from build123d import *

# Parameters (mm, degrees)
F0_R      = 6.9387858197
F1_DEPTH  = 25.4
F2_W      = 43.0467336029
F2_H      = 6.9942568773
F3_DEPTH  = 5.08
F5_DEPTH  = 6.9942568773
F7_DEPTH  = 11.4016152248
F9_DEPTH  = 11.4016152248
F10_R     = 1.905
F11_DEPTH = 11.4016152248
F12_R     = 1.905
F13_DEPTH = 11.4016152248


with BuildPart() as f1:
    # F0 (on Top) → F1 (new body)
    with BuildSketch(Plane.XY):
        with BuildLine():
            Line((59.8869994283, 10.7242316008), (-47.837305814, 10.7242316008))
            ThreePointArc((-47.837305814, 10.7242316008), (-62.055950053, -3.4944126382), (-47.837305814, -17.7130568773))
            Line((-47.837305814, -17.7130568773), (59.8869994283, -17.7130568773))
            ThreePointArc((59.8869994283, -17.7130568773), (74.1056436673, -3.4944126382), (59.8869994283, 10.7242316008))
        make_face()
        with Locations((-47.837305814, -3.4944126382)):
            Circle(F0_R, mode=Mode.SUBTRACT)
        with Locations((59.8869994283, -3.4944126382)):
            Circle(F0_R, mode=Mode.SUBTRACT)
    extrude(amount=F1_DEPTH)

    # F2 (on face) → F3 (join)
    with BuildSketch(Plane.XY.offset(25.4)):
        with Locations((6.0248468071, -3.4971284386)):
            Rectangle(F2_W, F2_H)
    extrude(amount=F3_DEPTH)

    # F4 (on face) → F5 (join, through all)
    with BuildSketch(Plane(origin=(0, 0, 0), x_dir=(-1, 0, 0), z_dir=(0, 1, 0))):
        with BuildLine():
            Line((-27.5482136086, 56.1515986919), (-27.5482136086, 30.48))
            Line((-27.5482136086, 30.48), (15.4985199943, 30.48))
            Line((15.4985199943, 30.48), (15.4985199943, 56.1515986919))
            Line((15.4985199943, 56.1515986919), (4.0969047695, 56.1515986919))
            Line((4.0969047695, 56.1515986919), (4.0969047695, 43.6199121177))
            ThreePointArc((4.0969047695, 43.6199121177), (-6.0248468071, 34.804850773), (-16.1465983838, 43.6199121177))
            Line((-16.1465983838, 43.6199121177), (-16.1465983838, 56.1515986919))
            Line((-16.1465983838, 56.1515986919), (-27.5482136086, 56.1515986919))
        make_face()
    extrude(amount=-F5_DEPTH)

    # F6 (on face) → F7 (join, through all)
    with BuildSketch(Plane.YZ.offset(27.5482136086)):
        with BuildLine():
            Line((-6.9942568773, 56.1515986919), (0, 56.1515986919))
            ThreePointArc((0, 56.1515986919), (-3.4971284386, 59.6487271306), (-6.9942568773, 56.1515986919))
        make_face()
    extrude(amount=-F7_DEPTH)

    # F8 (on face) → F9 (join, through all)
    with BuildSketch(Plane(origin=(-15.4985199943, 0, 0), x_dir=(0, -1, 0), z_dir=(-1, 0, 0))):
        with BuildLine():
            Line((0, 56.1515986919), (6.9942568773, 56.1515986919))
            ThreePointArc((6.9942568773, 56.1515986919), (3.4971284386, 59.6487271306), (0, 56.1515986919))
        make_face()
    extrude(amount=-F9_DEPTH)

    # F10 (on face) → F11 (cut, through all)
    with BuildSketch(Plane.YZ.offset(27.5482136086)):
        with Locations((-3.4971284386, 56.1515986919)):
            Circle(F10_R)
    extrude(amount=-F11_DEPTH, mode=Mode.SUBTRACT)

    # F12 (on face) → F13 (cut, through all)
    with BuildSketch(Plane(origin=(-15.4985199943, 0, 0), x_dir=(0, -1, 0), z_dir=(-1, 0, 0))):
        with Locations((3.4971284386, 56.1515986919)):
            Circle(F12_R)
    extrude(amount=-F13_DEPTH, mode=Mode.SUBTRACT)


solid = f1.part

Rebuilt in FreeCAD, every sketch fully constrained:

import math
import FreeCAD as App
import Part
import Sketcher
from FreeCAD import Vector
Q = App.Units.Quantity

doc = App.newDocument("Part")
params = doc.addObject("Spreadsheet::Sheet", "Params")
for row, (alias, value) in enumerate([
    ("pad1_length", "1 in"),
    ("pad2_length", "0.2 in"),
    ("pad3_length", "6.994257 mm"),
    ("pad4_length", "11.401615 mm"),
    ("pad5_length", "11.401615 mm"),
    ("sketch6_diameter", "0.15 in"),
    ("pocket1_length", "11.401615 mm"),
    ("sketch7_diameter", "0.15 in"),
], start=1):
    params.set(f"A{row}", alias)
    params.set(f"B{row}", "=" + value)
    params.setAlias(f"B{row}", alias)

body = doc.addObject("PartDesign::Body", "Body")

sketch1 = body.newObject("Sketcher::SketchObject", "Sketch")
sketch1.AttachmentSupport = (doc.getObject("XY_Plane"), [""])
sketch1.MapMode = "FlatFace"
sketch1.addGeometry([
    Part.LineSegment(Vector(60, 11, 0), Vector(-48, 11, 0)),
    Part.ArcOfCircle(Part.Circle(Vector(-48, -3, 0), Vector(0, 0, 1), 14), math.radians(90), math.radians(270)),
    Part.LineSegment(Vector(-48, -18, 0), Vector(60, -18, 0)),
    Part.ArcOfCircle(Part.Circle(Vector(60, -3, 0), Vector(0, 0, 1), 14), math.radians(-90), math.radians(90)),
    Part.Circle(Vector(-48, -3, 0), Vector(0, 0, 1), 7),
    Part.Circle(Vector(60, -3, 0), Vector(0, 0, 1), 7),
], False)
sketch1.addConstraint([
    Sketcher.Constraint("Tangent", 0, 2, 1, 1),
    Sketcher.Constraint("Tangent", 1, 2, 2, 1),
    Sketcher.Constraint("Tangent", 2, 2, 3, 1),
    Sketcher.Constraint("Tangent", 3, 2, 0, 1),
    Sketcher.Constraint("Horizontal", 0),
    Sketcher.Constraint("Horizontal", 2),
    Sketcher.Constraint("Coincident", 4, 3, 1, 3),
    Sketcher.Constraint("Coincident", 5, 3, 3, 3),
    Sketcher.Constraint("Equal", 4, 5),
    Sketcher.Constraint("Diameter", 4, Q("13.877572 mm")),
    Sketcher.Constraint("Radius", 1, Q("14.218644 mm")),
    Sketcher.Constraint("DistanceX", -1, 1, 3, 3, Q("59.886999 mm")),
    Sketcher.Constraint("DistanceX", 0, 2, 0, 1, Q("107.724305 mm")),
    Sketcher.Constraint("DistanceY", -1, 1, 0, 2, Q("10.724232 mm")),
])
pad1 = body.newObject("PartDesign::Pad", "Pad")
pad1.Profile = sketch1
pad1.setExpression("Length", "Params.pad1_length")

sketch2 = body.newObject("Sketcher::SketchObject", "Sketch001")
sketch2.AttachmentSupport = (doc.getObject("XY_Plane"), [""])
sketch2.MapMode = "FlatFace"
sketch2.AttachmentOffset = App.Placement(Vector(0, 0, 1 * 25.4), App.Rotation())
sketch2.addGeometry([
    Part.LineSegment(Vector(-15, 0, 0), Vector(-15, -7, 0)),
    Part.LineSegment(Vector(-15, -7, 0), Vector(28, -7, 0)),
    Part.LineSegment(Vector(28, -7, 0), Vector(28, 0, 0)),
    Part.LineSegment(Vector(28, 0, 0), Vector(-15, 0, 0)),
], False)
sketch2.addConstraint([
    Sketcher.Constraint("Coincident", 0, 2, 1, 1),
    Sketcher.Constraint("Coincident", 1, 2, 2, 1),
    Sketcher.Constraint("Coincident", 2, 2, 3, 1),
    Sketcher.Constraint("Coincident", 3, 2, 0, 1),
    Sketcher.Constraint("Vertical", 0),
    Sketcher.Constraint("Horizontal", 1),
    Sketcher.Constraint("Vertical", 2),
    Sketcher.Constraint("Horizontal", 3),
    Sketcher.Constraint("PointOnObject", 2, 2, -1),
    Sketcher.Constraint("DistanceX", 1, 1, 1, 2, Q("43.046734 mm")),
    Sketcher.Constraint("DistanceY", 0, 2, 0, 1, Q("6.994257 mm")),
    Sketcher.Constraint("DistanceX", 0, 2, -1, 1, Q("15.49852 mm")),
])
pad2 = body.newObject("PartDesign::Pad", "Pad001")
pad2.Profile = sketch2
pad2.setExpression("Length", "Params.pad2_length")

sketch3 = body.newObject("Sketcher::SketchObject", "Sketch002")
sketch3.AttachmentSupport = (doc.getObject("XZ_Plane"), [""])
sketch3.MapMode = "FlatFace"
sketch3.addGeometry([
    Part.LineSegment(Vector(28, 56, 0), Vector(28, 30, 0)),
    Part.LineSegment(Vector(28, 30, 0), Vector(-15, 30, 0)),
    Part.LineSegment(Vector(-15, 30, 0), Vector(-15, 56, 0)),
    Part.LineSegment(Vector(-15, 56, 0), Vector(-4, 56, 0)),
    Part.LineSegment(Vector(-4, 56, 0), Vector(-4, 44, 0)),
    Part.ArcOfCircle(Part.Circle(Vector(6, 45, 0), Vector(0, 0, 1), 10), math.radians(-172), math.radians(-8)),
    Part.LineSegment(Vector(16, 44, 0), Vector(16, 56, 0)),
    Part.LineSegment(Vector(16, 56, 0), Vector(28, 56, 0)),
], False)
sketch3.addConstraint([
    Sketcher.Constraint("Coincident", 0, 2, 1, 1),
    Sketcher.Constraint("Coincident", 1, 2, 2, 1),
    Sketcher.Constraint("Coincident", 2, 2, 3, 1),
    Sketcher.Constraint("Coincident", 3, 2, 4, 1),
    Sketcher.Constraint("Coincident", 4, 2, 5, 1),
    Sketcher.Constraint("Coincident", 5, 2, 6, 1),
    Sketcher.Constraint("Coincident", 6, 2, 7, 1),
    Sketcher.Constraint("Coincident", 7, 2, 0, 1),
    Sketcher.Constraint("Vertical", 0),
    Sketcher.Constraint("Horizontal", 1),
    Sketcher.Constraint("Vertical", 2),
    Sketcher.Constraint("Horizontal", 3),
    Sketcher.Constraint("Vertical", 4),
    Sketcher.Constraint("Vertical", 6),
    Sketcher.Constraint("Horizontal", 7),
    Sketcher.Constraint("Horizontal", 4, 2, 5, 2),
    Sketcher.Constraint("Horizontal", 3, 2, 6, 2),
    Sketcher.Constraint("Equal", 3, 7),
    Sketcher.Constraint("DistanceY", -1, 1, 0, 2, Q("1.2 in")),
    Sketcher.Constraint("Radius", 5, Q("10.218599 mm")),
    Sketcher.Constraint("DistanceY", 0, 2, 0, 1, Q("25.671599 mm")),
    Sketcher.Constraint("DistanceX", -1, 1, 5, 2, Q("16.146598 mm")),
    Sketcher.Constraint("DistanceX", 1, 2, 1, 1, Q("43.046734 mm")),
    Sketcher.Constraint("DistanceX", 3, 1, 3, 2, Q("11.401615 mm")),
    Sketcher.Constraint("DistanceY", 4, 2, 4, 1, Q("12.531687 mm")),
])
pad3 = body.newObject("PartDesign::Pad", "Pad002")
pad3.Profile = sketch3
pad3.setExpression("Length", "Params.pad3_length")

sketch4 = body.newObject("Sketcher::SketchObject", "Sketch003")
sketch4.AttachmentSupport = (doc.getObject("YZ_Plane"), [""])
sketch4.MapMode = "FlatFace"
sketch4.AttachmentOffset = App.Placement(Vector(0, 0, 27.548214), App.Rotation())
sketch4.addGeometry([
    Part.LineSegment(Vector(-7, 56.2, 0), Vector(0, 56.2, 0)),
    Part.ArcOfCircle(Part.Circle(Vector(-3.5, 56.2, 0), Vector(0, 0, 1), 3.5), math.radians(0), math.radians(180)),
], False)
sketch4.addConstraint([
    Sketcher.Constraint("Coincident", 0, 1, 1, 2),
    Sketcher.Constraint("Coincident", 1, 1, 0, 2),
    Sketcher.Constraint("Horizontal", 0),
    Sketcher.Constraint("PointOnObject", 1, 1, -2),
    Sketcher.Constraint("Horizontal", 1, 3, 0, 1),
    Sketcher.Constraint("Radius", 1, Q("3.497128 mm")),
    Sketcher.Constraint("DistanceY", -1, 1, 1, 3, Q("56.151599 mm")),
])
pad4 = body.newObject("PartDesign::Pad", "Pad003")
pad4.Profile = sketch4
pad4.setExpression("Length", "Params.pad4_length")
pad4.Reversed = True

sketch5 = body.newObject("Sketcher::SketchObject", "Sketch004")
sketch5.AttachmentSupport = (doc.getObject("YZ_Plane"), [""])
sketch5.MapMode = "FlatFace"
sketch5.AttachmentOffset = App.Placement(Vector(0, 0, -15.49852), App.Rotation())
sketch5.addGeometry([
    Part.LineSegment(Vector(0, 56.2, 0), Vector(-7, 56.2, 0)),
    Part.ArcOfCircle(Part.Circle(Vector(-3.5, 56.2, 0), Vector(0, 0, 1), 3.5), math.radians(0), math.radians(180)),
], False)
sketch5.addConstraint([
    Sketcher.Constraint("Coincident", 0, 1, 1, 1),
    Sketcher.Constraint("Coincident", 1, 2, 0, 2),
    Sketcher.Constraint("Horizontal", 0),
    Sketcher.Constraint("PointOnObject", 0, 1, -2),
    Sketcher.Constraint("Horizontal", 1, 3, 0, 1),
    Sketcher.Constraint("Radius", 1, Q("3.497128 mm")),
    Sketcher.Constraint("DistanceY", -1, 1, 1, 3, Q("56.151599 mm")),
])
pad5 = body.newObject("PartDesign::Pad", "Pad004")
pad5.Profile = sketch5
pad5.setExpression("Length", "Params.pad5_length")

sketch6 = body.newObject("Sketcher::SketchObject", "Sketch005")
sketch6.AttachmentSupport = (doc.getObject("YZ_Plane"), [""])
sketch6.MapMode = "FlatFace"
sketch6.AttachmentOffset = App.Placement(Vector(0, 0, 27.548214), App.Rotation())
sketch6.addGeometry(Part.Circle(Vector(-3.5, 56.2, 0), Vector(0, 0, 1), 1.9), False)
sketch6.addConstraint([
    Sketcher.Constraint("Diameter", 0, Q("0.15 in")),
    Sketcher.Constraint("DistanceY", -1, 1, 0, 3, Q("56.151599 mm")),
    Sketcher.Constraint("DistanceX", 0, 3, -1, 1, Q("3.497128 mm")),
])
sketch6.setExpression("Constraints[0]", "Params.sketch6_diameter")
pocket1 = body.newObject("PartDesign::Pocket", "Pocket")
pocket1.Profile = sketch6
pocket1.setExpression("Length", "Params.pocket1_length")

sketch7 = body.newObject("Sketcher::SketchObject", "Sketch006")
sketch7.AttachmentSupport = (doc.getObject("YZ_Plane"), [""])
sketch7.MapMode = "FlatFace"
sketch7.AttachmentOffset = App.Placement(Vector(0, 0, -15.49852), App.Rotation())
sketch7.addGeometry(Part.Circle(Vector(-3.5, 56.2, 0), Vector(0, 0, 1), 1.9), False)
sketch7.addConstraint([
    Sketcher.Constraint("Diameter", 0, Q("0.15 in")),
    Sketcher.Constraint("DistanceY", -1, 1, 0, 3, Q("56.151599 mm")),
    Sketcher.Constraint("DistanceX", 0, 3, -1, 1, Q("3.497128 mm")),
])
sketch7.setExpression("Constraints[0]", "Params.sketch7_diameter")
pocket2 = body.newObject("PartDesign::Pocket", "Pocket001")
pocket2.Profile = sketch7
pocket2.Type = "ThroughAll"
pocket2.Reversed = True

doc.recompute()
